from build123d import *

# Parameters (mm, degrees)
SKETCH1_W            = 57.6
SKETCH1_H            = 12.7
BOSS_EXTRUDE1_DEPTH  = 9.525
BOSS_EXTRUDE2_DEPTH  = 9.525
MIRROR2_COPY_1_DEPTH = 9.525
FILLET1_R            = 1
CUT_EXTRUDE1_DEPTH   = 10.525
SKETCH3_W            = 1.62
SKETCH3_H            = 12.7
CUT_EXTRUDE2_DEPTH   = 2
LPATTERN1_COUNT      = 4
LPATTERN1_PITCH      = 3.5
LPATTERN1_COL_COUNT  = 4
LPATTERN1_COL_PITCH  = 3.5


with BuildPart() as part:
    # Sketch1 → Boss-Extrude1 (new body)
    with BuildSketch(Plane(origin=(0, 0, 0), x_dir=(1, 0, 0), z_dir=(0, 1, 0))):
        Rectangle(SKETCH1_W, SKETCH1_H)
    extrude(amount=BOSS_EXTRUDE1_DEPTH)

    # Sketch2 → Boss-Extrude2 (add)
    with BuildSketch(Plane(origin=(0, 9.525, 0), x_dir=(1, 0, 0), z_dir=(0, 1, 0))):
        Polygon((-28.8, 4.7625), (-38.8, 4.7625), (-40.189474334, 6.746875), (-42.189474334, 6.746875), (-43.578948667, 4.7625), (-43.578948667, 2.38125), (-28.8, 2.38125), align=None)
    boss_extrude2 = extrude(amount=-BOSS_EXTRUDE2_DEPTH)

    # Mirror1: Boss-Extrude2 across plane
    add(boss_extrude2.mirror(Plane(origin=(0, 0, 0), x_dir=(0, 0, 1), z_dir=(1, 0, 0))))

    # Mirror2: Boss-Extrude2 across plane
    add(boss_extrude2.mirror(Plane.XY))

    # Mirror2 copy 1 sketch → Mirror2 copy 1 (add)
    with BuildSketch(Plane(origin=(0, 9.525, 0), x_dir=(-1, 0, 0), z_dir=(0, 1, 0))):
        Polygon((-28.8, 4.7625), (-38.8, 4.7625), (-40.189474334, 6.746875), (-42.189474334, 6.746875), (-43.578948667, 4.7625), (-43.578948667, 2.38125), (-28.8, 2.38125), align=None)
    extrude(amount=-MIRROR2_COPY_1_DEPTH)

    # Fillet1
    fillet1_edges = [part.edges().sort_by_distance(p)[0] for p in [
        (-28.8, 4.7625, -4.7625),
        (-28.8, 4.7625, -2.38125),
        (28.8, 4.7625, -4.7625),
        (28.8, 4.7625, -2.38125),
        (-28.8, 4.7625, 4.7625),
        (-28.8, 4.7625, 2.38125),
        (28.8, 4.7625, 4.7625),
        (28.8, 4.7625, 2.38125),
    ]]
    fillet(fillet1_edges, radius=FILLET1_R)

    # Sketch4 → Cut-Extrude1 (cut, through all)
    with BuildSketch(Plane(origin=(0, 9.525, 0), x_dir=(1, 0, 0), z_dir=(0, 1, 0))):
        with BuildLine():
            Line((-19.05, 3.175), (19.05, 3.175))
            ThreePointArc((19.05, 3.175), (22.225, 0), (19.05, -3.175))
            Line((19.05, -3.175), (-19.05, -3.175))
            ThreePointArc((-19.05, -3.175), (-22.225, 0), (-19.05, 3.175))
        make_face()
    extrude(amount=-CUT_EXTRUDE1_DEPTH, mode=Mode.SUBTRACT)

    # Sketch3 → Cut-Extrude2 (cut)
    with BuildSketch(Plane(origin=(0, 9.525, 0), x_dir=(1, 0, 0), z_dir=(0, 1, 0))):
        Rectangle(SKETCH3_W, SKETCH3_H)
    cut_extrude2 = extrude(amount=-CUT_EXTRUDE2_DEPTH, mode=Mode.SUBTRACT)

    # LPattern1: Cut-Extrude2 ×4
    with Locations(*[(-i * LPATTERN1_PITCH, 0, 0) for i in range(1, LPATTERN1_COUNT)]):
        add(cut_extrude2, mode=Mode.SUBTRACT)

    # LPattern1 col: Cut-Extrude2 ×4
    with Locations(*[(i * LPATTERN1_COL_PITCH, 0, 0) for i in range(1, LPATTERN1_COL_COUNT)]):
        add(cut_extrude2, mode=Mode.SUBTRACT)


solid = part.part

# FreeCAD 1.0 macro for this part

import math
import FreeCAD as App
import Part
import Sketcher

V = App.Vector
Q = App.Units.Quantity


def edges_at(feature, points):
    """Names of the edges that pass closest to the given points."""
    edges = feature.Shape.Edges
    near = lambda p: min(range(len(edges)), key=lambda i: edges[i].distToShape(Part.Vertex(*p))[0])
    return sorted({f"Edge{near(p) + 1}" for p in points})

doc = App.newDocument("Part")
body = doc.addObject("PartDesign::Body", "Body")

# Sketch on XZ plane
sketch1 = body.newObject("Sketcher::SketchObject", "Sketch")
sketch1.AttachmentSupport = (doc.getObject("XZ_Plane"), [""])
sketch1.MapMode = "FlatFace"
sketch1.addGeometry(Part.LineSegment(V(-29, -6, 0), V(-29, 6, 0)), False)
sketch1.addGeometry(Part.LineSegment(V(-29, 6, 0), V(29, 6, 0)), False)
sketch1.addGeometry(Part.LineSegment(V(29, 6, 0), V(29, -6, 0)), False)
sketch1.addGeometry(Part.LineSegment(V(29, -6, 0), V(-29, -6, 0)), False)
sketch1.addConstraint(Sketcher.Constraint("Coincident", 0, 2, 1, 1))
sketch1.addConstraint(Sketcher.Constraint("Coincident", 1, 2, 2, 1))
sketch1.addConstraint(Sketcher.Constraint("Coincident", 2, 2, 3, 1))
sketch1.addConstraint(Sketcher.Constraint("Coincident", 3, 2, 0, 1))
sketch1.addConstraint(Sketcher.Constraint("Vertical", 0))
sketch1.addConstraint(Sketcher.Constraint("Horizontal", 1))
sketch1.addConstraint(Sketcher.Constraint("Vertical", 2))
sketch1.addConstraint(Sketcher.Constraint("Horizontal", 3))
sketch1.addConstraint(Sketcher.Constraint("Symmetric", 0, 2, 2, 2, -1, 1))
sketch1.addConstraint(Sketcher.Constraint("DistanceY", 0, 1, 0, 2, Q("0.5 in")))
sketch1.addConstraint(Sketcher.Constraint("DistanceX", 1, 1, 1, 2, 57.6))
pad1 = body.newObject("PartDesign::Pad", "Pad")
pad1.Profile = sketch1
pad1.Length = Q("0.375 in")
pad1.Reversed = True

# Sketch on XZ plane
sketch2 = body.newObject("Sketcher::SketchObject", "Sketch001")
sketch2.AttachmentSupport = (doc.getObject("XZ_Plane"), [""])
sketch2.MapMode = "FlatFace"
sketch2.AttachmentOffset = App.Placement(V(0, 0, -0.375 * 25.4), App.Rotation())
sketch2.addGeometry(Part.LineSegment(V(-28.8, -4.8, 0), V(-38.8, -4.8, 0)), False)
sketch2.addGeometry(Part.LineSegment(V(-38.8, -4.8, 0), V(-40.2, -6.7, 0)), False)
sketch2.addGeometry(Part.LineSegment(V(-40.2, -6.7, 0), V(-42.2, -6.7, 0)), False)
sketch2.addGeometry(Part.LineSegment(V(-42.2, -6.7, 0), V(-43.6, -4.8, 0)), False)
sketch2.addGeometry(Part.LineSegment(V(-43.6, -4.8, 0), V(-43.6, -2.4, 0)), False)
sketch2.addGeometry(Part.LineSegment(V(-43.6, -2.4, 0), V(-28.8, -2.4, 0)), False)
sketch2.addGeometry(Part.LineSegment(V(-28.8, -2.4, 0), V(-28.8, -4.8, 0)), False)
sketch2.addConstraint(Sketcher.Constraint("Coincident", 0, 2, 1, 1))
sketch2.addConstraint(Sketcher.Constraint("Coincident", 1, 2, 2, 1))
sketch2.addConstraint(Sketcher.Constraint("Coincident", 2, 2, 3, 1))
sketch2.addConstraint(Sketcher.Constraint("Coincident", 3, 2, 4, 1))
sketch2.addConstraint(Sketcher.Constraint("Coincident", 4, 2, 5, 1))
sketch2.addConstraint(Sketcher.Constraint("Coincident", 5, 2, 6, 1))
sketch2.addConstraint(Sketcher.Constraint("Coincident", 6, 2, 0, 1))
sketch2.addConstraint(Sketcher.Constraint("Horizontal", 0))
sketch2.addConstraint(Sketcher.Constraint("Horizontal", 2))
sketch2.addConstraint(Sketcher.Constraint("Vertical", 4))
sketch2.addConstraint(Sketcher.Constraint("Horizontal", 5))
sketch2.addConstraint(Sketcher.Constraint("Vertical", 6))
sketch2.addConstraint(Sketcher.Constraint("Horizontal", 0, 2, 3, 2))
sketch2.addConstraint(Sketcher.Constraint("Equal", 1, 3))
sketch2.addConstraint(Sketcher.Constraint("Angle", 1, Q("-125 deg")))
sketch2.addConstraint(Sketcher.Constraint("DistanceY", 4, 1, 4, 2, Q("0.09375 in")))
sketch2.addConstraint(Sketcher.Constraint("DistanceY", 0, 2, -1, 1, Q("0.1875 in")))
sketch2.addConstraint(Sketcher.Constraint("DistanceY", 1, 2, -1, 1, Q("0.265625 in")))
sketch2.addConstraint(Sketcher.Constraint("DistanceX", 0, 2, 0, 1, 10.0))
sketch2.addConstraint(Sketcher.Constraint("DistanceX", 2, 2, 2, 1, 2.0))
sketch2.addConstraint(Sketcher.Constraint("DistanceX", 0, 2, -1, 1, 38.8))
pad2 = body.newObject("PartDesign::Pad", "Pad001")
pad2.Profile = sketch2
pad2.Length = Q("0.375 in")
doc.recompute()

mirrored = body.newObject("PartDesign::Mirrored", "Mirrored")
mirrored.Originals = [pad2]
mirrored.MirrorPlane = (doc.getObject("YZ_Plane"), [""])
body.Tip = mirrored
doc.recompute()

mirrored2 = body.newObject("PartDesign::Mirrored", "Mirrored001")
mirrored2.Originals = [pad2]
mirrored2.MirrorPlane = (doc.getObject("XY_Plane"), [""])
body.Tip = mirrored2

# Sketch on XZ plane
sketch3 = body.newObject("Sketcher::SketchObject", "Sketch002")
sketch3.AttachmentSupport = (doc.getObject("XZ_Plane"), [""])
sketch3.MapMode = "FlatFace"
sketch3.AttachmentOffset = App.Placement(V(0, 0, -0.375 * 25.4), App.Rotation())
sketch3.addGeometry(Part.LineSegment(V(28.8, 4.8, 0), V(38.8, 4.8, 0)), False)
sketch3.addGeometry(Part.LineSegment(V(38.8, 4.8, 0), V(40.2, 6.7, 0)), False)
sketch3.addGeometry(Part.LineSegment(V(40.2, 6.7, 0), V(42.2, 6.7, 0)), False)
sketch3.addGeometry(Part.LineSegment(V(42.2, 6.7, 0), V(43.6, 4.8, 0)), False)
sketch3.addGeometry(Part.LineSegment(V(43.6, 4.8, 0), V(43.6, 2.4, 0)), False)
sketch3.addGeometry(Part.LineSegment(V(43.6, 2.4, 0), V(28.8, 2.4, 0)), False)
sketch3.addGeometry(Part.LineSegment(V(28.8, 2.4, 0), V(28.8, 4.8, 0)), False)
sketch3.addConstraint(Sketcher.Constraint("Coincident", 0, 2, 1, 1))
sketch3.addConstraint(Sketcher.Constraint("Coincident", 1, 2, 2, 1))
sketch3.addConstraint(Sketcher.Constraint("Coincident", 2, 2, 3, 1))
sketch3.addConstraint(Sketcher.Constraint("Coincident", 3, 2, 4, 1))
sketch3.addConstraint(Sketcher.Constraint("Coincident", 4, 2, 5, 1))
sketch3.addConstraint(Sketcher.Constraint("Coincident", 5, 2, 6, 1))
sketch3.addConstraint(Sketcher.Constraint("Coincident", 6, 2, 0, 1))
sketch3.addConstraint(Sketcher.Constraint("Horizontal", 0))
sketch3.addConstraint(Sketcher.Constraint("Horizontal", 2))
sketch3.addConstraint(Sketcher.Constraint("Vertical", 4))
sketch3.addConstraint(Sketcher.Constraint("Horizontal", 5))
sketch3.addConstraint(Sketcher.Constraint("Vertical", 6))
sketch3.addConstraint(Sketcher.Constraint("Horizontal", 0, 2, 3, 2))
sketch3.addConstraint(Sketcher.Constraint("Equal", 1, 3))
sketch3.addConstraint(Sketcher.Constraint("Angle", 1, Q("55 deg")))
sketch3.addConstraint(Sketcher.Constraint("DistanceY", 4, 2, 4, 1, Q("0.09375 in")))
sketch3.addConstraint(Sketcher.Constraint("DistanceY", -1, 1, 0, 2, Q("0.1875 in")))
sketch3.addConstraint(Sketcher.Constraint("DistanceY", -1, 1, 1, 2, Q("0.265625 in")))
sketch3.addConstraint(Sketcher.Constraint("DistanceX", 0, 1, 0, 2, 10.0))
sketch3.addConstraint(Sketcher.Constraint("DistanceX", 2, 1, 2, 2, 2.0))
sketch3.addConstraint(Sketcher.Constraint("DistanceX", -1, 1, 0, 2, 38.8))
pad3 = body.newObject("PartDesign::Pad", "Pad002")
pad3.Profile = sketch3
pad3.Length = Q("0.375 in")
doc.recompute()

fillet = body.newObject("PartDesign::Fillet", "Fillet")
fillet.Base = (pad3, edges_at(pad3, [
    (-28.8, 4.763, -4.763),
    (-28.8, 4.763, -2.381),
    (28.8, 4.763, -4.763),
    (28.8, 4.763, -2.381),
    (-28.8, 4.763, 4.763),
    (-28.8, 4.763, 2.381),
    (28.8, 4.763, 4.763),
    (28.8, 4.763, 2.381),
]))
fillet.Radius = 1

# Sketch on XZ plane
sketch4 = body.newObject("Sketcher::SketchObject", "Sketch003")
sketch4.AttachmentSupport = (doc.getObject("XZ_Plane"), [""])
sketch4.MapMode = "FlatFace"
sketch4.AttachmentOffset = App.Placement(V(0, 0, -0.375 * 25.4), App.Rotation())
sketch4.addGeometry(Part.LineSegment(V(19.1, -3.2, 0), V(-19.1, -3.2, 0)), False)
sketch4.addGeometry(Part.ArcOfCircle(Part.Circle(V(-19.1, 0, 0), V(0, 0, 1), 3.2), math.radians(90), math.radians(270)), False)
sketch4.addGeometry(Part.LineSegment(V(-19.1, 3.2, 0), V(19.1, 3.2, 0)), False)
sketch4.addGeometry(Part.ArcOfCircle(Part.Circle(V(19.1, 0, 0), V(0, 0, 1), 3.2), math.radians(-90), math.radians(90)), False)
sketch4.addConstraint(Sketcher.Constraint("Tangent", 0, 2, 1, 2))
sketch4.addConstraint(Sketcher.Constraint("Tangent", 1, 1, 2, 1))
sketch4.addConstraint(Sketcher.Constraint("Tangent", 2, 2, 3, 2))
sketch4.addConstraint(Sketcher.Constraint("Tangent", 3, 1, 0, 1))
sketch4.addConstraint(Sketcher.Constraint("Horizontal", 0))
sketch4.addConstraint(Sketcher.Constraint("Horizontal", 2))
sketch4.addConstraint(Sketcher.Constraint("Symmetric", 1, 3, 3, 3, -1, 1))
sketch4.addConstraint(Sketcher.Constraint("DistanceX", 0, 2, 0, 1, Q("1.5 in")))
sketch4.addConstraint(Sketcher.Constraint("Radius", 1, Q("0.125 in")))
pocket1 = body.newObject("PartDesign::Pocket", "Pocket")
pocket1.Profile = sketch4
pocket1.Type = "ThroughAll"
pocket1.Reversed = True

# Sketch on XZ plane
sketch5 = body.newObject("Sketcher::SketchObject", "Sketch004")
sketch5.AttachmentSupport = (doc.getObject("XZ_Plane"), [""])
sketch5.MapMode = "FlatFace"
sketch5.AttachmentOffset = App.Placement(V(0, 0, -0.375 * 25.4), App.Rotation())
sketch5.addGeometry(Part.LineSegment(V(-0.8, -6.3, 0), V(-0.8, 6.3, 0)), False)
sketch5.addGeometry(Part.LineSegment(V(-0.8, 6.3, 0), V(0.8, 6.3, 0)), False)
sketch5.addGeometry(Part.LineSegment(V(0.8, 6.3, 0), V(0.8, -6.3, 0)), False)
sketch5.addGeometry(Part.LineSegment(V(0.8, -6.3, 0), V(-0.8, -6.3, 0)), False)
sketch5.addConstraint(Sketcher.Constraint("Coincident", 0, 2, 1, 1))
sketch5.addConstraint(Sketcher.Constraint("Coincident", 1, 2, 2, 1))
sketch5.addConstraint(Sketcher.Constraint("Coincident", 2, 2, 3, 1))
sketch5.addConstraint(Sketcher.Constraint("Coincident", 3, 2, 0, 1))
sketch5.addConstraint(Sketcher.Constraint("Vertical", 0))
sketch5.addConstraint(Sketcher.Constraint("Horizontal", 1))
sketch5.addConstraint(Sketcher.Constraint("Vertical", 2))
sketch5.addConstraint(Sketcher.Constraint("Horizontal", 3))
sketch5.addConstraint(Sketcher.Constraint("Symmetric", 0, 2, 2, 2, -1, 1))
sketch5.addConstraint(Sketcher.Constraint("DistanceY", 0, 1, 0, 2, Q("0.5 in")))
sketch5.addConstraint(Sketcher.Constraint("DistanceX", 1, 1, 1, 2, 1.62))
pocket2 = body.newObject("PartDesign::Pocket", "Pocket001")
pocket2.Profile = sketch5
pocket2.Length = 2
pocket2.Reversed = True
doc.recompute()

linearpattern = body.newObject("PartDesign::LinearPattern", "LinearPattern")
linearpattern.Originals = [pocket2]
linearpattern.Direction = (doc.getObject("X_Axis"), [""])
linearpattern.Mode = "offset"
linearpattern.Offset = 3.5
linearpattern.Occurrences = 4
linearpattern.Reversed = True
body.Tip = linearpattern
doc.recompute()

linearpattern2 = body.newObject("PartDesign::LinearPattern", "LinearPattern001")
linearpattern2.Originals = [pocket2]
linearpattern2.Direction = (doc.getObject("X_Axis"), [""])
linearpattern2.Mode = "offset"
linearpattern2.Offset = 3.5
linearpattern2.Occurrences = 4
body.Tip = linearpattern2

doc.recompute()
